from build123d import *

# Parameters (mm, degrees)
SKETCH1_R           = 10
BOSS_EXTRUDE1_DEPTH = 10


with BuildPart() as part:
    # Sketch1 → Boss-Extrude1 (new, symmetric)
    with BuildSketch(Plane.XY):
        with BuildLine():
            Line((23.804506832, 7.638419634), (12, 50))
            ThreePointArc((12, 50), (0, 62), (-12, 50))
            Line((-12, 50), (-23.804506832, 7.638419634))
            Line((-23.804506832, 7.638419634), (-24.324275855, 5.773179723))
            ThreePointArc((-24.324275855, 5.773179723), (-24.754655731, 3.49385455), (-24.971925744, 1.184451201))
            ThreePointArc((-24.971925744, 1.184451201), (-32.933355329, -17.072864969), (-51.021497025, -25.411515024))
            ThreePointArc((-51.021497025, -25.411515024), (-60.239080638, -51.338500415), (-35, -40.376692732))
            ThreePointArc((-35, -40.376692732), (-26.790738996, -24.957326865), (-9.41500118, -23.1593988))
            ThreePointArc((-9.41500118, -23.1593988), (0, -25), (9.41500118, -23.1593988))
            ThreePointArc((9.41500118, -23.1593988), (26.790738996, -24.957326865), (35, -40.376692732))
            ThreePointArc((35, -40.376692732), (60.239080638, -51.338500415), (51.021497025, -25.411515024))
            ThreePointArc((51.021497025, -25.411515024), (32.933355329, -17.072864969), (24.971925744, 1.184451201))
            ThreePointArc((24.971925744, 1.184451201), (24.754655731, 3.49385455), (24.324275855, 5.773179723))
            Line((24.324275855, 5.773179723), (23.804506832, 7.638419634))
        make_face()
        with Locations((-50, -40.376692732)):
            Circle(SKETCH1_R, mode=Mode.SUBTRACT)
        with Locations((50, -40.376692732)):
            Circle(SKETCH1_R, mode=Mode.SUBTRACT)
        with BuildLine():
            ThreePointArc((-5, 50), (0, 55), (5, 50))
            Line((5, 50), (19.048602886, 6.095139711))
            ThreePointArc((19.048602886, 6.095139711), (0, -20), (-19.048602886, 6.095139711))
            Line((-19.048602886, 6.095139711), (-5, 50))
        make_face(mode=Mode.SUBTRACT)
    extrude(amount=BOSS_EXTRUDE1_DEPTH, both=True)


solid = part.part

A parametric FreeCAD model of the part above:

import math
import FreeCAD as App
import Part
import Sketcher

doc = App.newDocument("Part")
body = doc.addObject("PartDesign::Body", "Body")

sketch1 = doc.addObject("Sketcher::SketchObject", "Sketch")
body.addObject(sketch1)
sketch1.AttachmentSupport = (doc.XY_Plane, [""])
sketch1.MapMode = "FlatFace"
sketch1.addGeometry(Part.LineSegment(App.Vector(23.804507, 7.63842, 0), App.Vector(12, 50, 0)), False)
sketch1.addGeometry(Part.ArcOfCircle(Part.Circle(App.Vector(0, 50, 0), App.Vector(0, 0, 1), 12), math.radians(0), math.radians(180)), False)
sketch1.addGeometry(Part.LineSegment(App.Vector(-12, 50, 0), App.Vector(-23.804507, 7.63842, 0)), False)
sketch1.addGeometry(Part.LineSegment(App.Vector(-23.804507, 7.63842, 0), App.Vector(-24.324276, 5.77318, 0)), False)
sketch1.addGeometry(Part.ArcOfCircle(Part.Circle(App.Vector(0, 0, 0), App.Vector(0, 0, 1), 25), math.radians(166.648335), math.radians(177.284421)), False)
sketch1.addGeometry(Part.ArcOfCircle(Part.Circle(App.Vector(-52.9274, 2.510416, 0), App.Vector(0, 0, 1), 27.986902), math.radians(-86.095147), math.radians(-2.715579)), False)
sketch1.addGeometry(Part.ArcOfCircle(Part.Circle(App.Vector(-50, -40.376693, 0), App.Vector(0, 0, 1), 15), math.radians(93.904853), math.radians(360)), False)
sketch1.addGeometry(Part.ArcOfCircle(Part.Circle(App.Vector(-16.414356, -40.376693, 0), App.Vector(0, 0, 1), 18.585644), math.radians(67.87676), math.radians(180)), False)
sketch1.addGeometry(Part.ArcOfCircle(Part.Circle(App.Vector(0, 0, 0), App.Vector(0, 0, 1), 25), math.radians(-112.12324), math.radians(-67.87676)), False)
sketch1.addGeometry(Part.ArcOfCircle(Part.Circle(App.Vector(16.414356, -40.376693, 0), App.Vector(0, 0, 1), 18.585644), math.radians(0), math.radians(112.12324)), False)
sketch1.addGeometry(Part.ArcOfCircle(Part.Circle(App.Vector(50, -40.376693, 0), App.Vector(0, 0, 1), 15), math.radians(180), math.radians(446.095147)), False)
sketch1.addGeometry(Part.ArcOfCircle(Part.Circle(App.Vector(52.9274, 2.510416, 0), App.Vector(0, 0, 1), 27.986902), math.radians(-177.284421), math.radians(-93.904853)), False)
sketch1.addGeometry(Part.ArcOfCircle(Part.Circle(App.Vector(0, 0, 0), App.Vector(0, 0, 1), 25), math.radians(2.715579), math.radians(13.351665)), False)
sketch1.addGeometry(Part.LineSegment(App.Vector(24.324276, 5.77318, 0), App.Vector(23.804507, 7.63842, 0)), False)
sketch1.addGeometry(Part.Circle(App.Vector(-50, -40.376693, 0), App.Vector(0, 0, 1), 10), False)
sketch1.addGeometry(Part.Circle(App.Vector(50, -40.376693, 0), App.Vector(0, 0, 1), 10), False)
sketch1.addGeometry(Part.LineSegment(App.Vector(-19.048603, 6.09514, 0), App.Vector(-5, 50, 0)), False)
sketch1.addGeometry(Part.ArcOfCircle(Part.Circle(App.Vector(0, 50, 0), App.Vector(0, 0, 1), 5), math.radians(0), math.radians(180)), False)
sketch1.addGeometry(Part.LineSegment(App.Vector(5, 50, 0), App.Vector(19.048603, 6.09514, 0)), False)
sketch1.addGeometry(Part.ArcOfCircle(Part.Circle(App.Vector(0, 0, 0), App.Vector(0, 0, 1), 20), math.radians(162.256456), math.radians(377.743544)), False)
sketch1.addConstraint(Sketcher.Constraint("Coincident", 0, 2, 1, 1))
sketch1.addConstraint(Sketcher.Constraint("Coincident", 1, 2, 2, 1))
sketch1.addConstraint(Sketcher.Constraint("Coincident", 2, 2, 3, 1))
sketch1.addConstraint(Sketcher.Constraint("Coincident", 3, 2, 4, 1))
sketch1.addConstraint(Sketcher.Constraint("Coincident", 4, 2, 5, 2))
sketch1.addConstraint(Sketcher.Constraint("Coincident", 5, 1, 6, 1))
sketch1.addConstraint(Sketcher.Constraint("Coincident", 6, 2, 7, 2))
sketch1.addConstraint(Sketcher.Constraint("Coincident", 7, 1, 8, 1))
sketch1.addConstraint(Sketcher.Constraint("Coincident", 8, 2, 9, 2))
sketch1.addConstraint(Sketcher.Constraint("Coincident", 9, 1, 10, 1))
sketch1.addConstraint(Sketcher.Constraint("Coincident", 10, 2, 11, 2))
sketch1.addConstraint(Sketcher.Constraint("Coincident", 11, 1, 12, 1))
sketch1.addConstraint(Sketcher.Constraint("Coincident", 12, 2, 13, 1))
sketch1.addConstraint(Sketcher.Constraint("Coincident", 13, 2, 0, 1))
sketch1.addConstraint(Sketcher.Constraint("Coincident", 16, 2, 17, 2))
sketch1.addConstraint(Sketcher.Constraint("Coincident", 17, 1, 18, 1))
sketch1.addConstraint(Sketcher.Constraint("Coincident", 18, 2, 19, 2))
sketch1.addConstraint(Sketcher.Constraint("Coincident", 19, 1, 16, 1))
sketch1.addConstraint(Sketcher.Constraint("Coincident", 4, 3, -1, 1))
sketch1.addConstraint(Sketcher.Constraint("Coincident", 8, 3, -1, 1))
sketch1.addConstraint(Sketcher.Constraint("Coincident", 12, 3, -1, 1))
sketch1.addConstraint(Sketcher.Constraint("Coincident", 19, 3, -1, 1))
sketch1.addConstraint(Sketcher.Constraint("Coincident", 14, 3, 6, 3))
sketch1.addConstraint(Sketcher.Constraint("Coincident", 15, 3, 10, 3))
sketch1.addConstraint(Sketcher.Constraint("Coincident", 17, 3, 1, 3))
sketch1.addConstraint(Sketcher.Constraint("PointOnObject", 1, 3, -2))
sketch1.addConstraint(Sketcher.Constraint("Diameter", 14, 20.0))
sketch1.addConstraint(Sketcher.Constraint("Diameter", 15, 20.0))
sketch1.addConstraint(Sketcher.Constraint("Radius", 1, 12.0))
sketch1.addConstraint(Sketcher.Constraint("Radius", 4, 25.0))
sketch1.addConstraint(Sketcher.Constraint("Radius", 6, 15.0))
sketch1.addConstraint(Sketcher.Constraint("Radius", 8, 25.0))
sketch1.addConstraint(Sketcher.Constraint("Radius", 10, 15.0))
sketch1.addConstraint(Sketcher.Constraint("Radius", 12, 25.0))
sketch1.addConstraint(Sketcher.Constraint("Radius", 17, 5.0))
sketch1.addConstraint(Sketcher.Constraint("Radius", 19, 20.0))
sketch1.addConstraint(Sketcher.Constraint("DistanceY", -1, 1, 1, 3, 50.0))
sketch1.addConstraint(Sketcher.Constraint("DistanceX", 6, 3, -1, 1, 50.0))
sketch1.addConstraint(Sketcher.Constraint("DistanceX", -1, 1, 10, 3, 50.0))
sketch1.addConstraint(Sketcher.Constraint("DistanceY", -1, 1, 0, 2, 50.0))
sketch1.addConstraint(Sketcher.Constraint("DistanceY", -1, 1, 1, 2, 50.0))
sketch1.addConstraint(Sketcher.Constraint("DistanceY", -1, 1, 16, 2, 50.0))
sketch1.addConstraint(Sketcher.Constraint("DistanceY", -1, 1, 17, 1, 50.0))
sketch1.addConstraint(Sketcher.Constraint("DistanceX", 7, 1, -1, 1, 9.415001))
sketch1.addConstraint(Sketcher.Constraint("DistanceX", -1, 1, 8, 2, 9.415001))
sketch1.addConstraint(Sketcher.Constraint("Radius", 5, 27.986902))
sketch1.addConstraint(Sketcher.Constraint("Radius", 7, 18.585644))
sketch1.addConstraint(Sketcher.Constraint("Radius", 9, 18.585644))
sketch1.addConstraint(Sketcher.Constraint("Radius", 11, 27.986902))
sketch1.addConstraint(Sketcher.Constraint("DistanceX", 5, 3, -1, 1, 52.9274))
sketch1.addConstraint(Sketcher.Constraint("DistanceX", -1, 1, 11, 3, 52.9274))
sketch1.addConstraint(Sketcher.Constraint("Distance", 0, 43.97556))
sketch1.addConstraint(Sketcher.Constraint("Distance", 2, 43.97556))
sketch1.addConstraint(Sketcher.Constraint("DistanceY", -1, 1, 2, 2, 7.63842))
sketch1.addConstraint(Sketcher.Constraint("DistanceY", -1, 1, 3, 2, 5.77318))
sketch1.addConstraint(Sketcher.Constraint("DistanceY", -1, 1, 4, 2, 1.184451))
sketch1.addConstraint(Sketcher.Constraint("DistanceY", -1, 1, 11, 1, 1.184451))
sketch1.addConstraint(Sketcher.Constraint("DistanceY", -1, 1, 12, 2, 5.77318))
sketch1.addConstraint(Sketcher.Constraint("DistanceY", -1, 1, 13, 2, 7.63842))
sketch1.addConstraint(Sketcher.Constraint("DistanceY", -1, 1, 18, 2, 6.09514))
sketch1.addConstraint(Sketcher.Constraint("DistanceY", -1, 1, 19, 1, 6.09514))
sketch1.addConstraint(Sketcher.Constraint("DistanceY", 5, 1, 5, 3, 27.921931))
sketch1.addConstraint(Sketcher.Constraint("DistanceY", 9, 1, 11, 3, 42.887109))
sketch1.addConstraint(Sketcher.Constraint("DistanceY", 10, 2, 11, 3, 27.921931))
sketch1.addConstraint(Sketcher.Constraint("DistanceY", 6, 2, -1, 1, 40.376693))
pad1 = doc.addObject("PartDesign::Pad", "Pad")
body.addObject(pad1)
pad1.Profile = sketch1
pad1.Length = 20
pad1.Midplane = True

doc.recompute()
